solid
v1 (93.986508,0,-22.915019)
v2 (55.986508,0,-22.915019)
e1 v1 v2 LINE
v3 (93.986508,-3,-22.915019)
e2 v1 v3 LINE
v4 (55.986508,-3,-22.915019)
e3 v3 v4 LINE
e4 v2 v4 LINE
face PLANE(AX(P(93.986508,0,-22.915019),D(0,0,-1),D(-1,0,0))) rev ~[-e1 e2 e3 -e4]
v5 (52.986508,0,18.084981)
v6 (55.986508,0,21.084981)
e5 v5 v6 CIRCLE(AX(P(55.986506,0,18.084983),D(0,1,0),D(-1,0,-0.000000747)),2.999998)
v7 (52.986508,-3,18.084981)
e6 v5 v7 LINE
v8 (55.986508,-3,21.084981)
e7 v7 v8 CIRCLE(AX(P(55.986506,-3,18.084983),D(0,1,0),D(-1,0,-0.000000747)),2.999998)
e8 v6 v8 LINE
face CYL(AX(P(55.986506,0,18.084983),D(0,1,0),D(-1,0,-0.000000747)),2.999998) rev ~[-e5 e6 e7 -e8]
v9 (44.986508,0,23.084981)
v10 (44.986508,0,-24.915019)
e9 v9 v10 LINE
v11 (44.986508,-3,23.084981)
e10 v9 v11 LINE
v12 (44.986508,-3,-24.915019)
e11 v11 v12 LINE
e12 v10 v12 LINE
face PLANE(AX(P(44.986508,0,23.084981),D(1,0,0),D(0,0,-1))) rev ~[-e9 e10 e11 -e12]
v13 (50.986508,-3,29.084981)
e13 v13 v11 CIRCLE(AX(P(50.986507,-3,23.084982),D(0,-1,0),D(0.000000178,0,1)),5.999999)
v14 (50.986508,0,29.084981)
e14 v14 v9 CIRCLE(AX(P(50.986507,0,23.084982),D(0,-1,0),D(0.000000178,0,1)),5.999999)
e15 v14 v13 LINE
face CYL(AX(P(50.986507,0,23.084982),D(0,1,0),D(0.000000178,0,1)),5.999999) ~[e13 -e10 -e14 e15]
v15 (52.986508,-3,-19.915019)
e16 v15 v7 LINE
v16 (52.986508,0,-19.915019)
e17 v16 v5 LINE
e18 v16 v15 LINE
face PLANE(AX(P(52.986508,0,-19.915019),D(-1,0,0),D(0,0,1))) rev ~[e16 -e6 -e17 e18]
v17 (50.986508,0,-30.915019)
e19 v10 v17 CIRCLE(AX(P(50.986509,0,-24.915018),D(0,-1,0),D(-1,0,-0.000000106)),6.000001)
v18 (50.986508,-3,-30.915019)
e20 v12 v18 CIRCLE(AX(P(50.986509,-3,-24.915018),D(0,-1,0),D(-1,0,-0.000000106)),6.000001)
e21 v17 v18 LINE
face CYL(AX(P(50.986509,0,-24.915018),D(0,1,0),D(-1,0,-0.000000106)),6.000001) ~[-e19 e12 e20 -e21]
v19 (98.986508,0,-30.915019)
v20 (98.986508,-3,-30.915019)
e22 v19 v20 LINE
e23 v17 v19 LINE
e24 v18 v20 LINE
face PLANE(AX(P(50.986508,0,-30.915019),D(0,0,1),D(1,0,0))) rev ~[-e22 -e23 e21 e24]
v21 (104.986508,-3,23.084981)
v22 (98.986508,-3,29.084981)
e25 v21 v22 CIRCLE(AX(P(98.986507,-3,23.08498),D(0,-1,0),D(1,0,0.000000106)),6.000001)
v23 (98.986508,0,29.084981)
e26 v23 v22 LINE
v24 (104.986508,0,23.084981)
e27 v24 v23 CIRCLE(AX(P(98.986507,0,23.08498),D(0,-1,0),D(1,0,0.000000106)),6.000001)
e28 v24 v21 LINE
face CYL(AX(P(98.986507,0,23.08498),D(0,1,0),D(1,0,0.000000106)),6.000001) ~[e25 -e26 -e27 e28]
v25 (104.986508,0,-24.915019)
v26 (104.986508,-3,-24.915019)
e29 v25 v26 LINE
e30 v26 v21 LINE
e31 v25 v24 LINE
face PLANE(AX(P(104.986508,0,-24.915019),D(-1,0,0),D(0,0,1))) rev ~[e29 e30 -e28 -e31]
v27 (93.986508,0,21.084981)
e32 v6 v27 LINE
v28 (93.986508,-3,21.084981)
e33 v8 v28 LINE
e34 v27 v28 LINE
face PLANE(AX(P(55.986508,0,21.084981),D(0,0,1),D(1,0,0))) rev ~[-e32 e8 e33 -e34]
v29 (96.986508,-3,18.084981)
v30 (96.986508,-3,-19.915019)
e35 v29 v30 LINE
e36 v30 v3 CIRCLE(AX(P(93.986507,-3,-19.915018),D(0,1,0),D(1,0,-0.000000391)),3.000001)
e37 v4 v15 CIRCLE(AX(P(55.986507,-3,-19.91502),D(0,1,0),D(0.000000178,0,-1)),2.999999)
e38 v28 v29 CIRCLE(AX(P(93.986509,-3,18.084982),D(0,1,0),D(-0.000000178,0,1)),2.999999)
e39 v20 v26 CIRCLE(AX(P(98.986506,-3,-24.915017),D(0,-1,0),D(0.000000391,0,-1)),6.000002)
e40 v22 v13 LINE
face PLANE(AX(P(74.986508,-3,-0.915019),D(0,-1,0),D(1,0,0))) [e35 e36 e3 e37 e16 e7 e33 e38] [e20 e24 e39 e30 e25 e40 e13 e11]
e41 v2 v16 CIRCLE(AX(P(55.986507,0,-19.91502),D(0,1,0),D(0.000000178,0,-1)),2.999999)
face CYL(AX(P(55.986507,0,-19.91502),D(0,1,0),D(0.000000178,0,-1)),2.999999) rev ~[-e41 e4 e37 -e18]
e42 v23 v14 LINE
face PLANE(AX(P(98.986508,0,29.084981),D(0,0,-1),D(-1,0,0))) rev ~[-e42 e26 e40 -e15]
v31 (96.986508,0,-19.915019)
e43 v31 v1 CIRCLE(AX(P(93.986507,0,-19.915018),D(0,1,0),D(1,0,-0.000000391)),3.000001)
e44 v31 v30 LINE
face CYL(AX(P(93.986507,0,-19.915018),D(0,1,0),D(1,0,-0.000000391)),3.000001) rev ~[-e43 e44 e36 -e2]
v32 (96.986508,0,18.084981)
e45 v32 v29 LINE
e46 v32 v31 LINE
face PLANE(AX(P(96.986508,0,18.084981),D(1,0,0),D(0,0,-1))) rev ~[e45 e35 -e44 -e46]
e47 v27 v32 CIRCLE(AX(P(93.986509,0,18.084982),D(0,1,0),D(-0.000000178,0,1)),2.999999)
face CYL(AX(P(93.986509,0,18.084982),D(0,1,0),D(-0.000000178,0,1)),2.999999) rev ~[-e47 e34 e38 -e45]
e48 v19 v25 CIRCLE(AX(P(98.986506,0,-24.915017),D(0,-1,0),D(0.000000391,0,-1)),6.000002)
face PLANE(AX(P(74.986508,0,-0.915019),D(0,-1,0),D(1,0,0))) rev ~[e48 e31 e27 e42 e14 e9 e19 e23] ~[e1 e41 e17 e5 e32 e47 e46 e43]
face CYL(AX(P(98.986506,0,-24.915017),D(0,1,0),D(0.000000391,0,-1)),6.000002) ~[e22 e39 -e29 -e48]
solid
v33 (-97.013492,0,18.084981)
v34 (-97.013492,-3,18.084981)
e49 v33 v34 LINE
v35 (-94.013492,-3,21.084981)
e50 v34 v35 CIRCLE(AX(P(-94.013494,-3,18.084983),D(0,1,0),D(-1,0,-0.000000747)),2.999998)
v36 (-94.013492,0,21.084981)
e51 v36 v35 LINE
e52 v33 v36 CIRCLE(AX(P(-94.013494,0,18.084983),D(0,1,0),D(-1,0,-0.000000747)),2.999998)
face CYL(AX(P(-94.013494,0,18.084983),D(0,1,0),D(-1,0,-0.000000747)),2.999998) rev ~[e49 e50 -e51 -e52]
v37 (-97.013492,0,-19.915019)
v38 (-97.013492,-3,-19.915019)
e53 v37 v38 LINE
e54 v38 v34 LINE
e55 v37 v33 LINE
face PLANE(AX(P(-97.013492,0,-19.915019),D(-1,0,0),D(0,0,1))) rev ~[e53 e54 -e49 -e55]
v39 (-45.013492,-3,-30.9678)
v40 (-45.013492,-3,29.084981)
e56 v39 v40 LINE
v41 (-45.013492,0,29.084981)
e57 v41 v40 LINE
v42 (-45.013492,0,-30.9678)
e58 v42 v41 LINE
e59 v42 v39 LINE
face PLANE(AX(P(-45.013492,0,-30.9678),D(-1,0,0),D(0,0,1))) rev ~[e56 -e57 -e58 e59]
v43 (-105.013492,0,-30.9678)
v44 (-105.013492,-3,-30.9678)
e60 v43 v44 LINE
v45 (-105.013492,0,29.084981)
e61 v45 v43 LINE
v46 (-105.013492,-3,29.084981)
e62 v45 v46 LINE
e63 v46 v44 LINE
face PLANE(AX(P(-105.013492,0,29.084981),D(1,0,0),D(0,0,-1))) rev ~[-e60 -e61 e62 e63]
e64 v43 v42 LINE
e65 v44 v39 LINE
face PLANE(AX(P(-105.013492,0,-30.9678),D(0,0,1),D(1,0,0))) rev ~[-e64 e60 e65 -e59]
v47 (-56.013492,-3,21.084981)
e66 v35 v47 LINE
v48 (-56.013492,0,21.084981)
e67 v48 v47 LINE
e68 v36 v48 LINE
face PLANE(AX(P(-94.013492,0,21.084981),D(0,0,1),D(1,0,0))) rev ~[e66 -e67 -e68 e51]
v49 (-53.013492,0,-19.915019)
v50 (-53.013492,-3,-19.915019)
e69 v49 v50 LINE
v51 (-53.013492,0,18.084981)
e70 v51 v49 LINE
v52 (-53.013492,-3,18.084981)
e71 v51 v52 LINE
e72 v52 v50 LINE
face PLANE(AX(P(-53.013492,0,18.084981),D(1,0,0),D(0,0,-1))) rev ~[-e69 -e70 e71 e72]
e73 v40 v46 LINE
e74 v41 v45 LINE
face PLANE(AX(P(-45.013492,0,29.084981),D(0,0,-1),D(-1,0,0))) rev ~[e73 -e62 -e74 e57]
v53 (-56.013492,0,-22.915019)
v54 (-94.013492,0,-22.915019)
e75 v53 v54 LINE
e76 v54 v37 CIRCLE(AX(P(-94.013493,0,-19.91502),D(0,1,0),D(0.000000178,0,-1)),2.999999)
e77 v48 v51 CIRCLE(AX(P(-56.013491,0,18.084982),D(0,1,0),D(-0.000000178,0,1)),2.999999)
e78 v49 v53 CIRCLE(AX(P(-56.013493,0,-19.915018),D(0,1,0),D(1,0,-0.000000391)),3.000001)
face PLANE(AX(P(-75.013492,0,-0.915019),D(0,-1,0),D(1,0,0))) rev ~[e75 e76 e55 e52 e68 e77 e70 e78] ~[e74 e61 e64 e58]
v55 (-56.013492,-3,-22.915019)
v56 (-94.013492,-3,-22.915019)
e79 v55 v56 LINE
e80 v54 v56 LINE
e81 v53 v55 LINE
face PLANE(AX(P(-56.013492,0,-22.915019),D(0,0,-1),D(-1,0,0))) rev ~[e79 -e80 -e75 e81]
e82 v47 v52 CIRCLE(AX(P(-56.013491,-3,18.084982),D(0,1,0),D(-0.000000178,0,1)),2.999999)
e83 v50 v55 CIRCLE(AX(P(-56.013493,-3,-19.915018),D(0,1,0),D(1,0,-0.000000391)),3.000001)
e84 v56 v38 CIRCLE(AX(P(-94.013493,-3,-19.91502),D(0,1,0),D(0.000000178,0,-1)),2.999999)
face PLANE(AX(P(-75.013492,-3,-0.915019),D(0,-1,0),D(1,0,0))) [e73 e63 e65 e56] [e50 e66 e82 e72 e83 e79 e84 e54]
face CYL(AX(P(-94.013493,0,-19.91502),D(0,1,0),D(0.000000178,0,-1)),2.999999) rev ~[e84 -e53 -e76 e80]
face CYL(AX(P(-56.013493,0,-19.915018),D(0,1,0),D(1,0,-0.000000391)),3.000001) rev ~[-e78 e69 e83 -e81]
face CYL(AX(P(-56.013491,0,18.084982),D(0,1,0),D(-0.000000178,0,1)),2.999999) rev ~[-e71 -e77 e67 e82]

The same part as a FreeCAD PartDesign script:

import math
import FreeCAD as App
import Part
import Sketcher
Q = App.Units.Quantity


def add_polygon(sketch, points):
    """Adds a closed chain of lines whose ends are joined by coincident constraints."""
    first, n = sketch.GeometryCount, len(points)
    for a, b in zip(points, points[1:] + points[:1]):
        sketch.addGeometry(Part.LineSegment(App.Vector(*a, 0), App.Vector(*b, 0)), False)
    for i in range(n):
        sketch.addConstraint(Sketcher.Constraint("Coincident", first + i, 2, first + (i + 1) % n, 1))

doc = App.newDocument("Part")
body = doc.addObject("PartDesign::Body", "Body")
body.AllowCompound = True

sketch1 = body.newObject("Sketcher::SketchObject", "Sketch")
sketch1.AttachmentSupport = (doc.getObject("XZ_Plane"), [""])
sketch1.MapMode = "FlatFace"
sketch1.addGeometry(Part.LineSegment(App.Vector(99, 29.1, 0), App.Vector(51, 29.1, 0)), False)
sketch1.addGeometry(Part.ArcOfCircle(Part.Circle(App.Vector(51, 23.1, 0), App.Vector(0, 0, 1), 6), math.radians(90), math.radians(180)), False)
sketch1.addGeometry(Part.LineSegment(App.Vector(45, 23.1, 0), App.Vector(45, -24.9, 0)), False)
sketch1.addGeometry(Part.ArcOfCircle(Part.Circle(App.Vector(51, -24.9, 0), App.Vector(0, 0, 1), 6), math.radians(-180), math.radians(-90)), False)
sketch1.addGeometry(Part.LineSegment(App.Vector(51, -30.9, 0), App.Vector(99, -30.9, 0)), False)
sketch1.addGeometry(Part.ArcOfCircle(Part.Circle(App.Vector(99, -24.9, 0), App.Vector(0, 0, 1), 6), math.radians(-90), math.radians(0)), False)
sketch1.addGeometry(Part.LineSegment(App.Vector(105, -24.9, 0), App.Vector(105, 23.1, 0)), False)
sketch1.addGeometry(Part.ArcOfCircle(Part.Circle(App.Vector(99, 23.1, 0), App.Vector(0, 0, 1), 6), math.radians(0), math.radians(90)), False)
sketch1.addGeometry(Part.LineSegment(App.Vector(53, -19.9, 0), App.Vector(53, 18.1, 0)), False)
sketch1.addGeometry(Part.ArcOfCircle(Part.Circle(App.Vector(56, 18.1, 0), App.Vector(0, 0, 1), 3), math.radians(90), math.radians(180)), False)
sketch1.addGeometry(Part.LineSegment(App.Vector(56, 21.1, 0), App.Vector(94, 21.1, 0)), False)
sketch1.addGeometry(Part.ArcOfCircle(Part.Circle(App.Vector(94, 18.1, 0), App.Vector(0, 0, 1), 3), math.radians(0), math.radians(90)), False)
sketch1.addGeometry(Part.LineSegment(App.Vector(97, 18.1, 0), App.Vector(97, -19.9, 0)), False)
sketch1.addGeometry(Part.ArcOfCircle(Part.Circle(App.Vector(94, -19.9, 0), App.Vector(0, 0, 1), 3), math.radians(-90), math.radians(0)), False)
sketch1.addGeometry(Part.LineSegment(App.Vector(94, -22.9, 0), App.Vector(56, -22.9, 0)), False)
sketch1.addGeometry(Part.ArcOfCircle(Part.Circle(App.Vector(56, -19.9, 0), App.Vector(0, 0, 1), 3), math.radians(180), math.radians(270)), False)
add_polygon(sketch1, [(-105, 29.1), (-105, -31), (-45, -31), (-45, 29.1)])
sketch1.addGeometry(Part.ArcOfCircle(Part.Circle(App.Vector(-94, 18.1, 0), App.Vector(0, 0, 1), 3), math.radians(90), math.radians(180)), False)
sketch1.addGeometry(Part.LineSegment(App.Vector(-94, 21.1, 0), App.Vector(-56, 21.1, 0)), False)
sketch1.addGeometry(Part.ArcOfCircle(Part.Circle(App.Vector(-56, 18.1, 0), App.Vector(0, 0, 1), 3), math.radians(0), math.radians(90)), False)
sketch1.addGeometry(Part.LineSegment(App.Vector(-53, 18.1, 0), App.Vector(-53, -19.9, 0)), False)
sketch1.addGeometry(Part.ArcOfCircle(Part.Circle(App.Vector(-56, -19.9, 0), App.Vector(0, 0, 1), 3), math.radians(-90), math.radians(0)), False)
sketch1.addGeometry(Part.LineSegment(App.Vector(-56, -22.9, 0), App.Vector(-94, -22.9, 0)), False)
sketch1.addGeometry(Part.ArcOfCircle(Part.Circle(App.Vector(-94, -19.9, 0), App.Vector(0, 0, 1), 3), math.radians(180), math.radians(270)), False)
sketch1.addGeometry(Part.LineSegment(App.Vector(-97, -19.9, 0), App.Vector(-97, 18.1, 0)), False)
sketch1.addConstraint(Sketcher.Constraint("Tangent", 0, 2, 1, 1))
sketch1.addConstraint(Sketcher.Constraint("Tangent", 1, 2, 2, 1))
sketch1.addConstraint(Sketcher.Constraint("Tangent", 2, 2, 3, 1))
sketch1.addConstraint(Sketcher.Constraint("Tangent", 3, 2, 4, 1))
sketch1.addConstraint(Sketcher.Constraint("Tangent", 4, 2, 5, 1))
sketch1.addConstraint(Sketcher.Constraint("Tangent", 5, 2, 6, 1))
sketch1.addConstraint(Sketcher.Constraint("Tangent", 6, 2, 7, 1))
sketch1.addConstraint(Sketcher.Constraint("Tangent", 7, 2, 0, 1))
sketch1.addConstraint(Sketcher.Constraint("Tangent", 8, 2, 9, 2))
sketch1.addConstraint(Sketcher.Constraint("Tangent", 9, 1, 10, 1))
sketch1.addConstraint(Sketcher.Constraint("Tangent", 10, 2, 11, 2))
sketch1.addConstraint(Sketcher.Constraint("Tangent", 11, 1, 12, 1))
sketch1.addConstraint(Sketcher.Constraint("Tangent", 12, 2, 13, 2))
sketch1.addConstraint(Sketcher.Constraint("Tangent", 13, 1, 14, 1))
sketch1.addConstraint(Sketcher.Constraint("Tangent", 14, 2, 15, 2))
sketch1.addConstraint(Sketcher.Constraint("Tangent", 15, 1, 8, 1))
sketch1.addConstraint(Sketcher.Constraint("Tangent", 20, 1, 21, 1))
sketch1.addConstraint(Sketcher.Constraint("Tangent", 21, 2, 22, 2))
sketch1.addConstraint(Sketcher.Constraint("Tangent", 22, 1, 23, 1))
sketch1.addConstraint(Sketcher.Constraint("Tangent", 23, 2, 24, 2))
sketch1.addConstraint(Sketcher.Constraint("Tangent", 24, 1, 25, 1))
sketch1.addConstraint(Sketcher.Constraint("Tangent", 25, 2, 26, 2))
sketch1.addConstraint(Sketcher.Constraint("Tangent", 26, 1, 27, 1))
sketch1.addConstraint(Sketcher.Constraint("Tangent", 27, 2, 20, 2))
sketch1.addConstraint(Sketcher.Constraint("Horizontal", 0))
sketch1.addConstraint(Sketcher.Constraint("Vertical", 2))
sketch1.addConstraint(Sketcher.Constraint("Horizontal", 4))
sketch1.addConstraint(Sketcher.Constraint("Vertical", 6))
sketch1.addConstraint(Sketcher.Constraint("Vertical", 8))
sketch1.addConstraint(Sketcher.Constraint("Horizontal", 10))
sketch1.addConstraint(Sketcher.Constraint("Vertical", 12))
sketch1.addConstraint(Sketcher.Constraint("Horizontal", 14))
sketch1.addConstraint(Sketcher.Constraint("Vertical", 16))
sketch1.addConstraint(Sketcher.Constraint("Horizontal", 17))
sketch1.addConstraint(Sketcher.Constraint("Vertical", 18))
sketch1.addConstraint(Sketcher.Constraint("Horizontal", 19))
sketch1.addConstraint(Sketcher.Constraint("Horizontal", 21))
sketch1.addConstraint(Sketcher.Constraint("Vertical", 23))
sketch1.addConstraint(Sketcher.Constraint("Horizontal", 25))
sketch1.addConstraint(Sketcher.Constraint("Vertical", 27))
sketch1.addConstraint(Sketcher.Constraint("Equal", 1, 3))
sketch1.addConstraint(Sketcher.Constraint("Equal", 3, 5))
sketch1.addConstraint(Sketcher.Constraint("Equal", 5, 7))
sketch1.addConstraint(Sketcher.Constraint("Equal", 9, 11))
sketch1.addConstraint(Sketcher.Constraint("Equal", 11, 13))
sketch1.addConstraint(Sketcher.Constraint("Equal", 13, 15))
sketch1.addConstraint(Sketcher.Constraint("Equal", 15, 20))
sketch1.addConstraint(Sketcher.Constraint("Equal", 20, 22))
sketch1.addConstraint(Sketcher.Constraint("Equal", 22, 24))
sketch1.addConstraint(Sketcher.Constraint("Equal", 24, 26))
sketch1.addConstraint(Sketcher.Constraint("Horizontal", 11, 3, 20, 3))
sketch1.addConstraint(Sketcher.Constraint("Horizontal", 15, 3, 24, 3))
sketch1.addConstraint(Sketcher.Constraint("Horizontal", 7, 2, 18, 2))
sketch1.addConstraint(Sketcher.Constraint("Equal", 14, 21))
sketch1.addConstraint(Sketcher.Constraint("Equal", 4, 2))
sketch1.addConstraint(Sketcher.Constraint("Equal", 25, 8))
sketch1.addConstraint(Sketcher.Constraint("Radius", 1, Q("5.999999 mm")))
sketch1.addConstraint(Sketcher.Constraint("Radius", 11, Q("2.999999 mm")))
sketch1.addConstraint(Sketcher.Constraint("DistanceX", 0, 2, 0, 1, Q("48 mm")))
sketch1.addConstraint(Sketcher.Constraint("DistanceX", 10, 1, 10, 2, Q("38 mm")))
sketch1.addConstraint(Sketcher.Constraint("DistanceX", 17, 1, 17, 2, Q("60 mm")))
sketch1.addConstraint(Sketcher.Constraint("DistanceX", 1, 3, 9, 3, Q("4.999999 mm")))
sketch1.addConstraint(Sketcher.Constraint("DistanceY", 9, 3, 1, 3, Q("4.999999 mm")))
sketch1.addConstraint(Sketcher.Constraint("DistanceX", 20, 3, 1, 3, Q("145.000001 mm")))
sketch1.addConstraint(Sketcher.Constraint("DistanceX", 16, 2, 26, 3, Q("10.999999 mm")))
sketch1.addConstraint(Sketcher.Constraint("DistanceY", 16, 2, 16, 1, Q("60.052781 mm")))
sketch1.addConstraint(Sketcher.Constraint("DistanceY", 16, 2, -1, 1, Q("30.9678 mm")))
sketch1.addConstraint(Sketcher.Constraint("DistanceX", -1, 1, 3, 3, Q("50.986509 mm")))
pad1 = body.newObject("PartDesign::Pad", "Pad")
pad1.Profile = sketch1
pad1.Length = 3

doc.recompute()
